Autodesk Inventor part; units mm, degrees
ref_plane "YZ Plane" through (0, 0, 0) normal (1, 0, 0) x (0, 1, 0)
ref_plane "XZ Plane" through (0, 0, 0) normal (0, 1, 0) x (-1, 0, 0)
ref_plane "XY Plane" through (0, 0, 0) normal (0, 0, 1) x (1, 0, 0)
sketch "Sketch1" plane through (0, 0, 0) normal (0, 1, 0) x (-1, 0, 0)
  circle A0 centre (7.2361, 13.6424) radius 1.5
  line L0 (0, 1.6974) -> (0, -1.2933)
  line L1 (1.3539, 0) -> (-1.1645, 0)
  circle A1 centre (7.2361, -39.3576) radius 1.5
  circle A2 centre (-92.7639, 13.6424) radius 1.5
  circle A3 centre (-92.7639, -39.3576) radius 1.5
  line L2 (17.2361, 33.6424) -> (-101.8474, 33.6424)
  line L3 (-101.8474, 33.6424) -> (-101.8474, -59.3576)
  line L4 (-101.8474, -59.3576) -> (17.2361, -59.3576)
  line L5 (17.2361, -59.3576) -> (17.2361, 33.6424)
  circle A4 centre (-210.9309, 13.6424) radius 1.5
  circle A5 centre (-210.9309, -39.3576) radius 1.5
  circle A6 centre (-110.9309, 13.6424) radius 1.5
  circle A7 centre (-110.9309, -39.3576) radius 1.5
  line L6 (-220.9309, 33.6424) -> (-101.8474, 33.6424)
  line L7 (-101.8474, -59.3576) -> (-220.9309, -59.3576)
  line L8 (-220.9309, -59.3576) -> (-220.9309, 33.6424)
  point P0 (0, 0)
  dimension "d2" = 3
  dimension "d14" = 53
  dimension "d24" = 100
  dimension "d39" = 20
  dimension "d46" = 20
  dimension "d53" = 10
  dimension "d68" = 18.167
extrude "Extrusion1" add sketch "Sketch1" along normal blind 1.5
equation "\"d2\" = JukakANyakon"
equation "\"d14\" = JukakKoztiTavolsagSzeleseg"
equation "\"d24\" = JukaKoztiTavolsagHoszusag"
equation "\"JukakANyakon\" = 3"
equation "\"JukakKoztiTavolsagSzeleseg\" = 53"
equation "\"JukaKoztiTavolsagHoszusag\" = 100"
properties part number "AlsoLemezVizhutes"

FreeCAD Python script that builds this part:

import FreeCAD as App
import Part
import Sketcher

V = App.Vector
Q = App.Units.Quantity

doc = App.newDocument("Part")
body = doc.addObject("PartDesign::Body", "Body")

# Sketch on XZ plane
sketch1 = body.newObject("Sketcher::SketchObject", "Sketch")
sketch1.AttachmentSupport = (doc.getObject("XZ_Plane"), [""])
sketch1.MapMode = "FlatFace"
sketch1.addGeometry([
    Part.LineSegment(V(-17.2, -59.4, 0), V(-17.2, 33.6, 0)),  # 0
    Part.LineSegment(V(-17.2, 33.6, 0), V(220.9, 33.6, 0)),  # 1
    Part.LineSegment(V(220.9, 33.6, 0), V(220.9, -59.4, 0)),  # 2
    Part.LineSegment(V(220.9, -59.4, 0), V(-17.2, -59.4, 0)),  # 3
    Part.Circle(V(92.8, -39.4, 0), V(0, 0, 1), 1.5),  # 4
    Part.Circle(V(-7.2, -39.4, 0), V(0, 0, 1), 1.5),  # 5
    Part.Circle(V(92.8, 13.6, 0), V(0, 0, 1), 1.5),  # 6
    Part.Circle(V(-7.2, 13.6, 0), V(0, 0, 1), 1.5),  # 7
    Part.Circle(V(110.9, 13.6, 0), V(0, 0, 1), 1.5),  # 8
    Part.Circle(V(210.9, -39.4, 0), V(0, 0, 1), 1.5),  # 9
    Part.Circle(V(110.9, -39.4, 0), V(0, 0, 1), 1.5),  # 10
    Part.Circle(V(210.9, 13.6, 0), V(0, 0, 1), 1.5),  # 11
], False)
sketch1.addConstraint([
    Sketcher.Constraint("Coincident", 0, 2, 1, 1),
    Sketcher.Constraint("Coincident", 1, 2, 2, 1),
    Sketcher.Constraint("Coincident", 2, 2, 3, 1),
    Sketcher.Constraint("Coincident", 3, 2, 0, 1),
    Sketcher.Constraint("Vertical", 0),
    Sketcher.Constraint("Horizontal", 1),
    Sketcher.Constraint("Vertical", 2),
    Sketcher.Constraint("Horizontal", 3),
    Sketcher.Constraint("Equal", 4, 5),
    Sketcher.Constraint("Equal", 5, 6),
    Sketcher.Constraint("Equal", 6, 7),
    Sketcher.Constraint("Equal", 7, 8),
    Sketcher.Constraint("Equal", 8, 9),
    Sketcher.Constraint("Equal", 9, 10),
    Sketcher.Constraint("Equal", 10, 11),
    Sketcher.Constraint("Horizontal", 4, 3, 5, 3),
    Sketcher.Constraint("Horizontal", 6, 3, 7, 3),
    Sketcher.Constraint("Horizontal", 7, 3, 8, 3),
    Sketcher.Constraint("Horizontal", 5, 3, 9, 3),
    Sketcher.Constraint("Horizontal", 9, 3, 10, 3),
    Sketcher.Constraint("Horizontal", 8, 3, 11, 3),
    Sketcher.Constraint("Vertical", 4, 3, 6, 3),
    Sketcher.Constraint("Vertical", 5, 3, 7, 3),
    Sketcher.Constraint("Vertical", 8, 3, 10, 3),
    Sketcher.Constraint("Vertical", 9, 3, 11, 3),
    Sketcher.Constraint("Diameter", 4, Q("3 mm")),
    Sketcher.Constraint("DistanceX", 5, 3, 4, 3, Q("100 mm")),
    Sketcher.Constraint("DistanceY", 4, 3, 6, 3, Q("53 mm")),
    Sketcher.Constraint("DistanceX", 8, 3, 9, 3, Q("100 mm")),
    Sketcher.Constraint("DistanceX", 0, 2, 7, 3, Q("10 mm")),
    Sketcher.Constraint("DistanceY", 7, 3, 0, 2, Q("20 mm")),
    Sketcher.Constraint("DistanceX", 11, 3, 1, 2, Q("10 mm")),
    Sketcher.Constraint("DistanceY", 2, 2, 9, 3, Q("20 mm")),
    Sketcher.Constraint("DistanceX", 6, 3, 8, 3, Q("18.167 mm")),
    Sketcher.Constraint("DistanceX", -1, 1, 4, 3, Q("92.764 mm")),
    Sketcher.Constraint("DistanceY", 4, 3, -1, 1, Q("39.3576 mm")),
])
pad1 = body.newObject("PartDesign::Pad", "Pad")
pad1.Profile = sketch1
pad1.Length = 1.5
pad1.Reversed = True

doc.recompute()
